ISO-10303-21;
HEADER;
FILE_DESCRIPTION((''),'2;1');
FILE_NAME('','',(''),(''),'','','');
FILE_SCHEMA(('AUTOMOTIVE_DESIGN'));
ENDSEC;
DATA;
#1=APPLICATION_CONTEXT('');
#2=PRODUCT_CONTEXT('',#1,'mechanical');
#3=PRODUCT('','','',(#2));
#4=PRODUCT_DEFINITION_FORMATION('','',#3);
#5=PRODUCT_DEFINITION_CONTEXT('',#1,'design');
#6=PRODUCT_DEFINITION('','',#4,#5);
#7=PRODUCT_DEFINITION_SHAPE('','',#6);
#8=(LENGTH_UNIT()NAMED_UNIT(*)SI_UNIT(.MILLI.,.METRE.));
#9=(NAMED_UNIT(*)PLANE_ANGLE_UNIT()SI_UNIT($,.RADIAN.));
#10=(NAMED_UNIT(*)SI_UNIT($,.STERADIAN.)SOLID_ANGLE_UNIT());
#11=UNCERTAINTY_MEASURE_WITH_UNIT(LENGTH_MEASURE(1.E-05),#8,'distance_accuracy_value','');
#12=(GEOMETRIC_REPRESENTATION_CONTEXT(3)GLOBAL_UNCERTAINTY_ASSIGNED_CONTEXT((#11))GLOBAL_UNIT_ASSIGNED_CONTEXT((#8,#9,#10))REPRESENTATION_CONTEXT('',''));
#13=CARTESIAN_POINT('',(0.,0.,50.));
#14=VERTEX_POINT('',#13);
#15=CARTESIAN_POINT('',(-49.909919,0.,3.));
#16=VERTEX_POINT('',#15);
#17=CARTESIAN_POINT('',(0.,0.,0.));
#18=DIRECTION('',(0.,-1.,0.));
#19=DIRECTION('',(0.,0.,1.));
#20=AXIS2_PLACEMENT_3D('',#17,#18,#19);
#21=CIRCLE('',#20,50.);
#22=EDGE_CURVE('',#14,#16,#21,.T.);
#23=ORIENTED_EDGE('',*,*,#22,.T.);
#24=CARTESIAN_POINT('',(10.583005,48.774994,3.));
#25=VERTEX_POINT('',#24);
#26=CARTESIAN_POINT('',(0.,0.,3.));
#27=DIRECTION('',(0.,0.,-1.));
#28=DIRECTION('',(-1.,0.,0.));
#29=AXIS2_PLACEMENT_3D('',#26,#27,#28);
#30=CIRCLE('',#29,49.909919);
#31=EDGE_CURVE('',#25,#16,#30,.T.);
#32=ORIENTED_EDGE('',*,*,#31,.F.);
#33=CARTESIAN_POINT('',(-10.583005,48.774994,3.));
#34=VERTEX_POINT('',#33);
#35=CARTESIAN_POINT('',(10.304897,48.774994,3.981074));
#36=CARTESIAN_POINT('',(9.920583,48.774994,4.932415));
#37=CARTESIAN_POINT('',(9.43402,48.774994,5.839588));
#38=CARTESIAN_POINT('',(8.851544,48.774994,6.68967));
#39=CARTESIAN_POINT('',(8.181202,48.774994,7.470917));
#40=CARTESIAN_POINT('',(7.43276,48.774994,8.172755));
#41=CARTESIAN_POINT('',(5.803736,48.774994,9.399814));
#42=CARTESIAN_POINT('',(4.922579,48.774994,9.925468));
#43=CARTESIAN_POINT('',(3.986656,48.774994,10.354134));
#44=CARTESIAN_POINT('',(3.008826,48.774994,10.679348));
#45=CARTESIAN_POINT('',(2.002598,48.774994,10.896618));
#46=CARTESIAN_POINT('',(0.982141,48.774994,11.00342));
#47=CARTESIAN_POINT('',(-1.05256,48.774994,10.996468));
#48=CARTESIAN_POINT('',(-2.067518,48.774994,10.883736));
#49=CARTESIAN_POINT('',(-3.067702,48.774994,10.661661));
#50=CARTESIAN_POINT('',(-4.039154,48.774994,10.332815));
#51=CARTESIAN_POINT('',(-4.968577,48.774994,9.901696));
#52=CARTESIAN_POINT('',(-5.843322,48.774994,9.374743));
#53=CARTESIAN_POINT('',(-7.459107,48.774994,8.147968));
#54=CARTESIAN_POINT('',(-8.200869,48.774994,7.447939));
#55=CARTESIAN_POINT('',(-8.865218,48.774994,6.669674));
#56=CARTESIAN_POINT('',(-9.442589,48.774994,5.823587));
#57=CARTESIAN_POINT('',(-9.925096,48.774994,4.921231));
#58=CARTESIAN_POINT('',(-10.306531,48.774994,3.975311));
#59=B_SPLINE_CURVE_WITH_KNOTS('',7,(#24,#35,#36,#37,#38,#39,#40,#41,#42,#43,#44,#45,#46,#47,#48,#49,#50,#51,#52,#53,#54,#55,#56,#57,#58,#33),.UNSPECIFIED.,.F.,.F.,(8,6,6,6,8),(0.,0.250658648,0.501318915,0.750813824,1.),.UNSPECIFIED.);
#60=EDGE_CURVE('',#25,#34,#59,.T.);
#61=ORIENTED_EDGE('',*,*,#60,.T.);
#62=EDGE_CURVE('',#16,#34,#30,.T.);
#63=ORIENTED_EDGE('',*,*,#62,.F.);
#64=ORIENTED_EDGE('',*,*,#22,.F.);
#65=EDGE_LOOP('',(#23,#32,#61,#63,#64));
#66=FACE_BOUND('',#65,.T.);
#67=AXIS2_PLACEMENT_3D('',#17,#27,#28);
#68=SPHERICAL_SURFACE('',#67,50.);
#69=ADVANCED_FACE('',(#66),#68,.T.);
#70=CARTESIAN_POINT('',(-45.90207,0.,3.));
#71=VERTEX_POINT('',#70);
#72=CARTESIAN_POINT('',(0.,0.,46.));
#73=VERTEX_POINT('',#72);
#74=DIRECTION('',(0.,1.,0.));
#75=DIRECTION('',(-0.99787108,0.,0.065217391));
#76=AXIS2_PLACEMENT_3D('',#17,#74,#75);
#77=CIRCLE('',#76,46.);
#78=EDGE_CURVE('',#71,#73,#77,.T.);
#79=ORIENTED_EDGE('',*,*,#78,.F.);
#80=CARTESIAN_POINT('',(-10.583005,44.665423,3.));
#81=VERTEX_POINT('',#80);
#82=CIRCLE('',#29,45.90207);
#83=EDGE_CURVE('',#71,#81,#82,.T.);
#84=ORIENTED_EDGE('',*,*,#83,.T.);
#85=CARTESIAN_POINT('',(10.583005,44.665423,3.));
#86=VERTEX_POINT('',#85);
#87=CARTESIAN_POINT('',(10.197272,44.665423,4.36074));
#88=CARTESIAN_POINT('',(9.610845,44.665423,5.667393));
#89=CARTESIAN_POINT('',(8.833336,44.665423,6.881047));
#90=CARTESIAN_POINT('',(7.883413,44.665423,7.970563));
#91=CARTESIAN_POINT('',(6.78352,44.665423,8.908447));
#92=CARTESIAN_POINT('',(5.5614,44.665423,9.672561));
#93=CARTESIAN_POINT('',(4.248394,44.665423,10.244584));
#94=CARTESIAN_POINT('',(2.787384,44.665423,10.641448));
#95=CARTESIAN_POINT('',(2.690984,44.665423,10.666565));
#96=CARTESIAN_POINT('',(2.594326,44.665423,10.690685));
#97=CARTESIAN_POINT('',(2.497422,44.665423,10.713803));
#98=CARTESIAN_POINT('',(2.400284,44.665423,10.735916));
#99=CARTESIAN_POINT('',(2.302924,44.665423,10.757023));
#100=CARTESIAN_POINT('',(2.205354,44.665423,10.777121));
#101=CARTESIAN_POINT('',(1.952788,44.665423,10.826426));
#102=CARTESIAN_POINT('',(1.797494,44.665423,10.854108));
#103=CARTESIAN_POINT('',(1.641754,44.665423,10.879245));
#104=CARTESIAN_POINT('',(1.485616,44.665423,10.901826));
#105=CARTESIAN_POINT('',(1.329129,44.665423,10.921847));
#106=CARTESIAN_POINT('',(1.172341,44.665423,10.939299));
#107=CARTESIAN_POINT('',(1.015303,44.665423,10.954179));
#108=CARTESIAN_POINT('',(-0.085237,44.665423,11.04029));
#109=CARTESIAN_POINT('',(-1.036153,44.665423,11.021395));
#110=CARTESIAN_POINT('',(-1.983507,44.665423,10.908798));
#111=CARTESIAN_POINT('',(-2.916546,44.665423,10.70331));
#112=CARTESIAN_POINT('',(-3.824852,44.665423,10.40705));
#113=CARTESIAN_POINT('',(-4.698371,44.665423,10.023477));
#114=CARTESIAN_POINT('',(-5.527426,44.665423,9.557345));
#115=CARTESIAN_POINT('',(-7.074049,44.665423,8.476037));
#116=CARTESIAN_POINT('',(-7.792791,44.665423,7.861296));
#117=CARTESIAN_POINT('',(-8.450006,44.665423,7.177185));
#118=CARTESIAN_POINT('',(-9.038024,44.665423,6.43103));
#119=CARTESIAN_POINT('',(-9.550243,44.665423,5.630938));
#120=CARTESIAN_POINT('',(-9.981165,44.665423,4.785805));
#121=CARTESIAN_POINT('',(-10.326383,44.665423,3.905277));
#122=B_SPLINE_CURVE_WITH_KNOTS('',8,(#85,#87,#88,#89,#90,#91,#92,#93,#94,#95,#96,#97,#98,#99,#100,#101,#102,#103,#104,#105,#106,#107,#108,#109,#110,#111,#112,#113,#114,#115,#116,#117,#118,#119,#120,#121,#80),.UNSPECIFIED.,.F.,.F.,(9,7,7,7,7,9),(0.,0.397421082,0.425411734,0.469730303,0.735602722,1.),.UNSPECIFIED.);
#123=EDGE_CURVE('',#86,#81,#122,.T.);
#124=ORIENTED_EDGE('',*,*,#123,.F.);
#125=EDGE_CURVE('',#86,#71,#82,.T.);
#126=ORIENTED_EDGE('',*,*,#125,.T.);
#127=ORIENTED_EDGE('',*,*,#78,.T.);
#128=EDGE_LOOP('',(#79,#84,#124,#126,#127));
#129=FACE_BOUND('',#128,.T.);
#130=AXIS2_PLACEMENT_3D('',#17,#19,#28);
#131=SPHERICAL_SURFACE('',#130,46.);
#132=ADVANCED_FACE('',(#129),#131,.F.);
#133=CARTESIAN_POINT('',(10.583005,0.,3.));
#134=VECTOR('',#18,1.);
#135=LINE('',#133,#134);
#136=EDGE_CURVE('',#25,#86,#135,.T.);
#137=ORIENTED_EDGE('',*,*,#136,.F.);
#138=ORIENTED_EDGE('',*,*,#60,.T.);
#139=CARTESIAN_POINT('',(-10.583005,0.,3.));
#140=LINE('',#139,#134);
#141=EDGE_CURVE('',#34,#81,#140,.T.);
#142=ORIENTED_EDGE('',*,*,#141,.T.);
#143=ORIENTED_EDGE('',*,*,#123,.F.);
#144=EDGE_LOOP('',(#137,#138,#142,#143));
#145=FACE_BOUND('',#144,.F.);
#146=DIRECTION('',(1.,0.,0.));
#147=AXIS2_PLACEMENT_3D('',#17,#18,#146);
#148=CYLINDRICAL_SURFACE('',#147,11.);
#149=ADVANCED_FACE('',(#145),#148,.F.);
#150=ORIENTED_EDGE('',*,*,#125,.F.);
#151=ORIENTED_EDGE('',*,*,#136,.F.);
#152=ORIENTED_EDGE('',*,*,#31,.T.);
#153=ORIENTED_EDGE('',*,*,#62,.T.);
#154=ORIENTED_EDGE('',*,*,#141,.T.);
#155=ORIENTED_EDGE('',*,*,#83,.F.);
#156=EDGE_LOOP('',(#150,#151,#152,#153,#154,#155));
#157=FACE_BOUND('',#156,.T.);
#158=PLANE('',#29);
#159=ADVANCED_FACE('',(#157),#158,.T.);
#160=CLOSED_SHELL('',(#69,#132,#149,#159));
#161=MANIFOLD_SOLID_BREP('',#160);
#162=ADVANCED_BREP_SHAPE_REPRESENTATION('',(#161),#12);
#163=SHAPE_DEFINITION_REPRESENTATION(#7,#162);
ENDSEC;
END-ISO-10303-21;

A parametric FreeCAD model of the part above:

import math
import FreeCAD as App
import Part
import Sketcher
from FreeCAD import Vector

doc = App.newDocument("Part")
params = doc.addObject("Spreadsheet::Sheet", "Params")
for row, (alias, value) in enumerate([
    ("sketch1_radius", "50 mm"),
    ("sketch1_radius2", "46 mm"),
    ("revolution_angle", "360 deg"),
    ("sketch2_diameter", "22 mm"),
], start=1):
    params.set(f"A{row}", alias)
    params.set(f"B{row}", "=" + value)
    params.setAlias(f"B{row}", alias)

body = doc.addObject("PartDesign::Body", "Body")

# Sketch on XZ plane
sketch1 = body.newObject("Sketcher::SketchObject", "Sketch")
sketch1.AttachmentSupport = (doc.getObject("XZ_Plane"), [""])
sketch1.MapMode = "FlatFace"
sketch1.addGeometry([
    Part.LineSegment(Vector(0, 46, 0), Vector(0, 50, 0)),
    Part.ArcOfCircle(Part.Circle(Vector(0, 0, 0), Vector(0, 0, 1), 50), math.radians(90), math.radians(176.560187)),
    Part.LineSegment(Vector(-49.909919, 3, 0), Vector(-45.90207, 3, 0)),
    Part.ArcOfCircle(Part.Circle(Vector(0, 0, 0), Vector(0, 0, 1), 46), math.radians(90), math.radians(176.260665)),
], False)
sketch1.addConstraint([
    Sketcher.Constraint("Coincident", 0, 2, 1, 1),
    Sketcher.Constraint("Coincident", 1, 2, 2, 1),
    Sketcher.Constraint("Coincident", 2, 2, 3, 2),
    Sketcher.Constraint("Coincident", 3, 1, 0, 1),
    Sketcher.Constraint("Vertical", 0),
    Sketcher.Constraint("Horizontal", 2),
    Sketcher.Constraint("Coincident", 1, 3, -1, 1),
    Sketcher.Constraint("Coincident", 3, 3, -1, 1),
    Sketcher.Constraint("PointOnObject", 0, 2, -2),
    Sketcher.Constraint("Radius", 1, 50.0),
    Sketcher.Constraint("Radius", 3, 46.0),
    Sketcher.Constraint("DistanceY", -1, 1, 1, 2, 3.0),
])
sketch1.setExpression("Constraints[9]", "Params.sketch1_radius")
sketch1.setExpression("Constraints[10]", "Params.sketch1_radius2")
revolution = body.newObject("PartDesign::Revolution", "Revolution")
revolution.Profile = sketch1
revolution.ReferenceAxis = (sketch1, ["V_Axis"])
revolution.setExpression("Angle", "Params.revolution_angle")

# Sketch on XZ plane
sketch2 = body.newObject("Sketcher::SketchObject", "Sketch001")
sketch2.AttachmentSupport = (doc.getObject("XZ_Plane"), [""])
sketch2.MapMode = "FlatFace"
sketch2.addGeometry(Part.Circle(Vector(0, 0, 0), Vector(0, 0, 1), 11), False)
sketch2.addConstraint([
    Sketcher.Constraint("Coincident", 0, 3, -1, 1),
    Sketcher.Constraint("Diameter", 0, 22.0),
])
sketch2.setExpression("Constraints[1]", "Params.sketch2_diameter")
pocket1 = body.newObject("PartDesign::Pocket", "Pocket")
pocket1.Profile = sketch2
pocket1.Type = "ThroughAll"

doc.recompute()
